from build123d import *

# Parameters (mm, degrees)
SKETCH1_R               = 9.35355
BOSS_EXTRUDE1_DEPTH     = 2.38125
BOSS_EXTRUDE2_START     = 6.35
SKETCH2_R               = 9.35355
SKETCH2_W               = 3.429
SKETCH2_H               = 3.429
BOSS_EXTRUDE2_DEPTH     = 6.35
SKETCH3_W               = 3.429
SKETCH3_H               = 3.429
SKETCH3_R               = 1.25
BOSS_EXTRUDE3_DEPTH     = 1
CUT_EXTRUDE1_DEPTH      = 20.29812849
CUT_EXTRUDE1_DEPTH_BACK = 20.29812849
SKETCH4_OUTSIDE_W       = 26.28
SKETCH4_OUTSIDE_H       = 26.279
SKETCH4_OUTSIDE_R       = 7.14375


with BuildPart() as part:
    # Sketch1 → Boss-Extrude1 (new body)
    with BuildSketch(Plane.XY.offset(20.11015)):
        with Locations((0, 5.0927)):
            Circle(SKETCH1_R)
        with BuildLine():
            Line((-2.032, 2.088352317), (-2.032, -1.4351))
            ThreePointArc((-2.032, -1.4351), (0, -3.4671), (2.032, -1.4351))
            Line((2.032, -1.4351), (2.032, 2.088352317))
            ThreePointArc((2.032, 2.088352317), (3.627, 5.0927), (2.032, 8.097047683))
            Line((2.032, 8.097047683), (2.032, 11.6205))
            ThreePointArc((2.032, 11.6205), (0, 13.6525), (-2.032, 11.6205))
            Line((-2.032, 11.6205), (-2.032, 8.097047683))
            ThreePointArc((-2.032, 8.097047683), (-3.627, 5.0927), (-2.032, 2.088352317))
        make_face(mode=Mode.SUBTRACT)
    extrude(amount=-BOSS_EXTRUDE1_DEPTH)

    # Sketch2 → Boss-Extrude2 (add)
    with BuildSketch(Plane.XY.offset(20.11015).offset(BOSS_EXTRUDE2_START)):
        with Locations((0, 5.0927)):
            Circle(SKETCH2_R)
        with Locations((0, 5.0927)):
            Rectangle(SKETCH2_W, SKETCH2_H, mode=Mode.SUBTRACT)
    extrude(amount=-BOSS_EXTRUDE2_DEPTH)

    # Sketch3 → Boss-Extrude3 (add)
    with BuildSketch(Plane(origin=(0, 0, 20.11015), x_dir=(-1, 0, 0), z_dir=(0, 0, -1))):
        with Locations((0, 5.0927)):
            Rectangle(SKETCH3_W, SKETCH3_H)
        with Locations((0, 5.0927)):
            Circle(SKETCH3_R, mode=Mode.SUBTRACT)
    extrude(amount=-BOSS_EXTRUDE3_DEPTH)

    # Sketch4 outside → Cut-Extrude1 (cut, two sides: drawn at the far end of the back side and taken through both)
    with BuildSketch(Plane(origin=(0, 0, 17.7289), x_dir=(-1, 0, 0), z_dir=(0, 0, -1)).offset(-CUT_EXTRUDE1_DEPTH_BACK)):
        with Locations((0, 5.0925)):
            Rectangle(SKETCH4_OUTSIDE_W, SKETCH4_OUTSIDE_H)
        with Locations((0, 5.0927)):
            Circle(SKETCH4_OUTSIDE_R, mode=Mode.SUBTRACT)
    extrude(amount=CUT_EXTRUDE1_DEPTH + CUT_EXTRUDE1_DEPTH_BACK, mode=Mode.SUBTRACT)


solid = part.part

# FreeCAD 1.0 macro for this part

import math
import FreeCAD as App
import Part
import Sketcher
Q = App.Units.Quantity

doc = App.newDocument("Part")
body = doc.addObject("PartDesign::Body", "Body")

# Sketch on XY plane
sketch1 = body.newObject("Sketcher::SketchObject", "Sketch")
sketch1.AttachmentSupport = (doc.getObject("XY_Plane"), [""])
sketch1.MapMode = "FlatFace"
sketch1.AttachmentOffset = App.Placement(App.Vector(0, 0, 20.11015), App.Rotation())
sketch1.addGeometry([
    Part.Circle(App.Vector(0, 5.0927, 0), App.Vector(0, 0, 1), 9.35355),  # 0
    Part.LineSegment(App.Vector(-2.032, -1.4351, 0), App.Vector(-2.032, 2.088352, 0)),  # 1
    Part.ArcOfCircle(Part.Circle(App.Vector(0, 5.0927, 0), App.Vector(0, 0, 1), 3.627), math.radians(124.072579), math.radians(235.927421)),  # 2
    Part.LineSegment(App.Vector(-2.032, 8.097048, 0), App.Vector(-2.032, 11.6205, 0)),  # 3
    Part.ArcOfCircle(Part.Circle(App.Vector(0, 11.6205, 0), App.Vector(0, 0, 1), 2.032), math.radians(0), math.radians(180)),  # 4
    Part.LineSegment(App.Vector(2.032, 11.6205, 0), App.Vector(2.032, 8.097048, 0)),  # 5
    Part.ArcOfCircle(Part.Circle(App.Vector(0, 5.0927, 0), App.Vector(0, 0, 1), 3.627), math.radians(-55.927421), math.radians(55.927421)),  # 6
    Part.LineSegment(App.Vector(2.032, 2.088352, 0), App.Vector(2.032, -1.4351, 0)),  # 7
    Part.ArcOfCircle(Part.Circle(App.Vector(0, -1.4351, 0), App.Vector(0, 0, 1), 2.032), math.radians(180), math.radians(360)),  # 8
], False)
sketch1.addConstraint([
    Sketcher.Constraint("Coincident", 1, 2, 2, 2),
    Sketcher.Constraint("Coincident", 2, 1, 3, 1),
    Sketcher.Constraint("Tangent", 3, 2, 4, 2),
    Sketcher.Constraint("Tangent", 4, 1, 5, 1),
    Sketcher.Constraint("Coincident", 5, 2, 6, 2),
    Sketcher.Constraint("Coincident", 6, 1, 7, 1),
    Sketcher.Constraint("Tangent", 7, 2, 8, 2),
    Sketcher.Constraint("Tangent", 8, 1, 1, 1),
    Sketcher.Constraint("Vertical", 1),
    Sketcher.Constraint("Vertical", 3),
    Sketcher.Constraint("Vertical", 5),
    Sketcher.Constraint("Vertical", 7),
    Sketcher.Constraint("Coincident", 2, 3, 0, 3),
    Sketcher.Constraint("Coincident", 6, 3, 0, 3),
    Sketcher.Constraint("Equal", 2, 6),
    Sketcher.Constraint("Equal", 4, 8),
    Sketcher.Constraint("Symmetric", 2, 1, 5, 2, -2),
    Sketcher.Constraint("PointOnObject", 8, 3, -2),
    Sketcher.Constraint("Equal", 1, 3),
    Sketcher.Constraint("Radius", 4, Q("0.08 in")),
    Sketcher.Constraint("Diameter", 0, Q("0.7365 in")),
    Sketcher.Constraint("Radius", 2, 3.627),
    Sketcher.Constraint("DistanceY", 0, 3, 4, 3, Q("0.257 in")),
    Sketcher.Constraint("DistanceY", -1, 1, 0, 3, Q("0.2005 in")),
])
pad1 = body.newObject("PartDesign::Pad", "Pad")
pad1.Profile = sketch1
pad1.Length = Q("0.09375 in")
pad1.Reversed = True

# Sketch on XY plane
sketch2 = body.newObject("Sketcher::SketchObject", "Sketch001")
sketch2.AttachmentSupport = (doc.getObject("XY_Plane"), [""])
sketch2.MapMode = "FlatFace"
sketch2.AttachmentOffset = App.Placement(App.Vector(0, 0, 26.46015), App.Rotation())
sketch2.addGeometry([
    Part.Circle(App.Vector(0, 5.0927, 0), App.Vector(0, 0, 1), 9.35355),  # 0
    Part.LineSegment(App.Vector(1.7145, 3.3782, 0), App.Vector(-1.7145, 3.3782, 0)),  # 1
    Part.LineSegment(App.Vector(-1.7145, 3.3782, 0), App.Vector(-1.7145, 6.8072, 0)),  # 2
    Part.LineSegment(App.Vector(-1.7145, 6.8072, 0), App.Vector(1.7145, 6.8072, 0)),  # 3
    Part.LineSegment(App.Vector(1.7145, 6.8072, 0), App.Vector(1.7145, 3.3782, 0)),  # 4
], False)
sketch2.addConstraint([
    Sketcher.Constraint("Coincident", 1, 2, 2, 1),
    Sketcher.Constraint("Coincident", 2, 2, 3, 1),
    Sketcher.Constraint("Coincident", 3, 2, 4, 1),
    Sketcher.Constraint("Coincident", 4, 2, 1, 1),
    Sketcher.Constraint("Horizontal", 1),
    Sketcher.Constraint("Vertical", 2),
    Sketcher.Constraint("Horizontal", 3),
    Sketcher.Constraint("Vertical", 4),
    Sketcher.Constraint("PointOnObject", 0, 3, -2),
    Sketcher.Constraint("Equal", 3, 2),
    Sketcher.Constraint("Diameter", 0, Q("0.7365 in")),
    Sketcher.Constraint("DistanceX", 1, 2, 1, 1, Q("0.135 in")),
    Sketcher.Constraint("DistanceY", -1, 1, 1, 2, Q("0.133 in")),
    Sketcher.Constraint("DistanceY", -1, 1, 0, 3, Q("0.2005 in")),
    Sketcher.Constraint("DistanceX", 1, 2, -1, 1, Q("0.0675 in")),
])
pad2 = body.newObject("PartDesign::Pad", "Pad001")
pad2.Profile = sketch2
pad2.Length = Q("0.25 in")
pad2.Reversed = True

# Sketch on XY plane
sketch3 = body.newObject("Sketcher::SketchObject", "Sketch002")
sketch3.AttachmentSupport = (doc.getObject("XY_Plane"), [""])
sketch3.MapMode = "FlatFace"
sketch3.AttachmentOffset = App.Placement(App.Vector(0, 0, 20.11015), App.Rotation())
sketch3.addGeometry([
    Part.LineSegment(App.Vector(1.7145, 6.8072, 0), App.Vector(1.7145, 3.3782, 0)),  # 0
    Part.LineSegment(App.Vector(1.7145, 3.3782, 0), App.Vector(-1.7145, 3.3782, 0)),  # 1
    Part.LineSegment(App.Vector(-1.7145, 3.3782, 0), App.Vector(-1.7145, 6.8072, 0)),  # 2
    Part.LineSegment(App.Vector(-1.7145, 6.8072, 0), App.Vector(1.7145, 6.8072, 0)),  # 3
    Part.Circle(App.Vector(0, 5.0927, 0), App.Vector(0, 0, 1), 1.25),  # 4
], False)
sketch3.addConstraint([
    Sketcher.Constraint("Coincident", 0, 2, 1, 1),
    Sketcher.Constraint("Coincident", 1, 2, 2, 1),
    Sketcher.Constraint("Coincident", 2, 2, 3, 1),
    Sketcher.Constraint("Coincident", 3, 2, 0, 1),
    Sketcher.Constraint("Vertical", 0),
    Sketcher.Constraint("Horizontal", 1),
    Sketcher.Constraint("Vertical", 2),
    Sketcher.Constraint("Horizontal", 3),
    Sketcher.Constraint("PointOnObject", 4, 3, -2),
    Sketcher.Constraint("Equal", 3, 0),
    Sketcher.Constraint("Diameter", 4, 2.5),
    Sketcher.Constraint("DistanceX", 1, 2, 1, 1, Q("0.135 in")),
    Sketcher.Constraint("DistanceY", -1, 1, 0, 2, Q("0.133 in")),
    Sketcher.Constraint("DistanceY", -1, 1, 4, 3, Q("0.2005 in")),
    Sketcher.Constraint("DistanceX", -1, 1, 0, 2, Q("0.0675 in")),
])
pad3 = body.newObject("PartDesign::Pad", "Pad002")
pad3.Profile = sketch3
pad3.Length = 1

# Sketch on XY plane
sketch4 = body.newObject("Sketcher::SketchObject", "Sketch003")
sketch4.AttachmentSupport = (doc.getObject("XY_Plane"), [""])
sketch4.MapMode = "FlatFace"
sketch4.AttachmentOffset = App.Placement(App.Vector(0, 0, 17.7289), App.Rotation())
sketch4.addGeometry([
    Part.LineSegment(App.Vector(13.14, 18.232, 0), App.Vector(13.14, -8.047, 0)),  # 0
    Part.LineSegment(App.Vector(13.14, -8.047, 0), App.Vector(-13.14, -8.047, 0)),  # 1
    Part.LineSegment(App.Vector(-13.14, -8.047, 0), App.Vector(-13.14, 18.232, 0)),  # 2
    Part.LineSegment(App.Vector(-13.14, 18.232, 0), App.Vector(13.14, 18.232, 0)),  # 3
    Part.Circle(App.Vector(0, 5.0927, 0), App.Vector(0, 0, 1), 7.14375),  # 4
], False)
sketch4.addConstraint([
    Sketcher.Constraint("Coincident", 0, 2, 1, 1),
    Sketcher.Constraint("Coincident", 1, 2, 2, 1),
    Sketcher.Constraint("Coincident", 2, 2, 3, 1),
    Sketcher.Constraint("Coincident", 3, 2, 0, 1),
    Sketcher.Constraint("Vertical", 0),
    Sketcher.Constraint("Horizontal", 1),
    Sketcher.Constraint("Vertical", 2),
    Sketcher.Constraint("Horizontal", 3),
    Sketcher.Constraint("PointOnObject", 4, 3, -2),
    Sketcher.Constraint("Diameter", 4, Q("0.5625 in")),
    Sketcher.Constraint("DistanceX", 1, 2, 1, 1, 26.28),
    Sketcher.Constraint("DistanceY", 0, 2, 0, 1, 26.279),
    Sketcher.Constraint("DistanceY", -1, 1, 4, 3, Q("0.2005 in")),
    Sketcher.Constraint("DistanceX", -1, 1, 0, 2, 13.14),
    Sketcher.Constraint("DistanceY", 0, 2, -1, 1, 8.047),
])
pocket1 = body.newObject("PartDesign::Pocket", "Pocket")
pocket1.Profile = sketch4
pocket1.Type = "ThroughAll"
pocket1.Midplane = True

doc.recompute()
